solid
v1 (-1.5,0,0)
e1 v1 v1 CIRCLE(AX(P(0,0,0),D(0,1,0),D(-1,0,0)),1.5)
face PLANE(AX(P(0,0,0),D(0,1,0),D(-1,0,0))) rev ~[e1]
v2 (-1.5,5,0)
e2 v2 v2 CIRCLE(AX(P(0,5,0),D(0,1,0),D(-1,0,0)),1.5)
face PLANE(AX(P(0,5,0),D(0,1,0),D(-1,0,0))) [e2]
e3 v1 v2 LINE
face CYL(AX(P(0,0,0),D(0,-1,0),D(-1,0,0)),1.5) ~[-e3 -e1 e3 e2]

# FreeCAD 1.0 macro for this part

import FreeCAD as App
import Part
import Sketcher

V = App.Vector
Q = App.Units.Quantity

doc = App.newDocument("Part")
body = doc.addObject("PartDesign::Body", "Body")

sketch1 = body.newObject("Sketcher::SketchObject", "Sketch")
sketch1.AttachmentSupport = (doc.getObject("XZ_Plane"), [""])
sketch1.MapMode = "FlatFace"
sketch1.addGeometry(Part.Circle(V(0, 0, 0), V(0, 0, 1), 1.5), False)
sketch1.addConstraint([
    Sketcher.Constraint("Coincident", 0, 3, -1, 1),
    Sketcher.Constraint("Diameter", 0, Q("3 mm")),
])
pad1 = body.newObject("PartDesign::Pad", "Pad")
pad1.Profile = sketch1
pad1.Length = 5
pad1.Reversed = True

doc.recompute()
